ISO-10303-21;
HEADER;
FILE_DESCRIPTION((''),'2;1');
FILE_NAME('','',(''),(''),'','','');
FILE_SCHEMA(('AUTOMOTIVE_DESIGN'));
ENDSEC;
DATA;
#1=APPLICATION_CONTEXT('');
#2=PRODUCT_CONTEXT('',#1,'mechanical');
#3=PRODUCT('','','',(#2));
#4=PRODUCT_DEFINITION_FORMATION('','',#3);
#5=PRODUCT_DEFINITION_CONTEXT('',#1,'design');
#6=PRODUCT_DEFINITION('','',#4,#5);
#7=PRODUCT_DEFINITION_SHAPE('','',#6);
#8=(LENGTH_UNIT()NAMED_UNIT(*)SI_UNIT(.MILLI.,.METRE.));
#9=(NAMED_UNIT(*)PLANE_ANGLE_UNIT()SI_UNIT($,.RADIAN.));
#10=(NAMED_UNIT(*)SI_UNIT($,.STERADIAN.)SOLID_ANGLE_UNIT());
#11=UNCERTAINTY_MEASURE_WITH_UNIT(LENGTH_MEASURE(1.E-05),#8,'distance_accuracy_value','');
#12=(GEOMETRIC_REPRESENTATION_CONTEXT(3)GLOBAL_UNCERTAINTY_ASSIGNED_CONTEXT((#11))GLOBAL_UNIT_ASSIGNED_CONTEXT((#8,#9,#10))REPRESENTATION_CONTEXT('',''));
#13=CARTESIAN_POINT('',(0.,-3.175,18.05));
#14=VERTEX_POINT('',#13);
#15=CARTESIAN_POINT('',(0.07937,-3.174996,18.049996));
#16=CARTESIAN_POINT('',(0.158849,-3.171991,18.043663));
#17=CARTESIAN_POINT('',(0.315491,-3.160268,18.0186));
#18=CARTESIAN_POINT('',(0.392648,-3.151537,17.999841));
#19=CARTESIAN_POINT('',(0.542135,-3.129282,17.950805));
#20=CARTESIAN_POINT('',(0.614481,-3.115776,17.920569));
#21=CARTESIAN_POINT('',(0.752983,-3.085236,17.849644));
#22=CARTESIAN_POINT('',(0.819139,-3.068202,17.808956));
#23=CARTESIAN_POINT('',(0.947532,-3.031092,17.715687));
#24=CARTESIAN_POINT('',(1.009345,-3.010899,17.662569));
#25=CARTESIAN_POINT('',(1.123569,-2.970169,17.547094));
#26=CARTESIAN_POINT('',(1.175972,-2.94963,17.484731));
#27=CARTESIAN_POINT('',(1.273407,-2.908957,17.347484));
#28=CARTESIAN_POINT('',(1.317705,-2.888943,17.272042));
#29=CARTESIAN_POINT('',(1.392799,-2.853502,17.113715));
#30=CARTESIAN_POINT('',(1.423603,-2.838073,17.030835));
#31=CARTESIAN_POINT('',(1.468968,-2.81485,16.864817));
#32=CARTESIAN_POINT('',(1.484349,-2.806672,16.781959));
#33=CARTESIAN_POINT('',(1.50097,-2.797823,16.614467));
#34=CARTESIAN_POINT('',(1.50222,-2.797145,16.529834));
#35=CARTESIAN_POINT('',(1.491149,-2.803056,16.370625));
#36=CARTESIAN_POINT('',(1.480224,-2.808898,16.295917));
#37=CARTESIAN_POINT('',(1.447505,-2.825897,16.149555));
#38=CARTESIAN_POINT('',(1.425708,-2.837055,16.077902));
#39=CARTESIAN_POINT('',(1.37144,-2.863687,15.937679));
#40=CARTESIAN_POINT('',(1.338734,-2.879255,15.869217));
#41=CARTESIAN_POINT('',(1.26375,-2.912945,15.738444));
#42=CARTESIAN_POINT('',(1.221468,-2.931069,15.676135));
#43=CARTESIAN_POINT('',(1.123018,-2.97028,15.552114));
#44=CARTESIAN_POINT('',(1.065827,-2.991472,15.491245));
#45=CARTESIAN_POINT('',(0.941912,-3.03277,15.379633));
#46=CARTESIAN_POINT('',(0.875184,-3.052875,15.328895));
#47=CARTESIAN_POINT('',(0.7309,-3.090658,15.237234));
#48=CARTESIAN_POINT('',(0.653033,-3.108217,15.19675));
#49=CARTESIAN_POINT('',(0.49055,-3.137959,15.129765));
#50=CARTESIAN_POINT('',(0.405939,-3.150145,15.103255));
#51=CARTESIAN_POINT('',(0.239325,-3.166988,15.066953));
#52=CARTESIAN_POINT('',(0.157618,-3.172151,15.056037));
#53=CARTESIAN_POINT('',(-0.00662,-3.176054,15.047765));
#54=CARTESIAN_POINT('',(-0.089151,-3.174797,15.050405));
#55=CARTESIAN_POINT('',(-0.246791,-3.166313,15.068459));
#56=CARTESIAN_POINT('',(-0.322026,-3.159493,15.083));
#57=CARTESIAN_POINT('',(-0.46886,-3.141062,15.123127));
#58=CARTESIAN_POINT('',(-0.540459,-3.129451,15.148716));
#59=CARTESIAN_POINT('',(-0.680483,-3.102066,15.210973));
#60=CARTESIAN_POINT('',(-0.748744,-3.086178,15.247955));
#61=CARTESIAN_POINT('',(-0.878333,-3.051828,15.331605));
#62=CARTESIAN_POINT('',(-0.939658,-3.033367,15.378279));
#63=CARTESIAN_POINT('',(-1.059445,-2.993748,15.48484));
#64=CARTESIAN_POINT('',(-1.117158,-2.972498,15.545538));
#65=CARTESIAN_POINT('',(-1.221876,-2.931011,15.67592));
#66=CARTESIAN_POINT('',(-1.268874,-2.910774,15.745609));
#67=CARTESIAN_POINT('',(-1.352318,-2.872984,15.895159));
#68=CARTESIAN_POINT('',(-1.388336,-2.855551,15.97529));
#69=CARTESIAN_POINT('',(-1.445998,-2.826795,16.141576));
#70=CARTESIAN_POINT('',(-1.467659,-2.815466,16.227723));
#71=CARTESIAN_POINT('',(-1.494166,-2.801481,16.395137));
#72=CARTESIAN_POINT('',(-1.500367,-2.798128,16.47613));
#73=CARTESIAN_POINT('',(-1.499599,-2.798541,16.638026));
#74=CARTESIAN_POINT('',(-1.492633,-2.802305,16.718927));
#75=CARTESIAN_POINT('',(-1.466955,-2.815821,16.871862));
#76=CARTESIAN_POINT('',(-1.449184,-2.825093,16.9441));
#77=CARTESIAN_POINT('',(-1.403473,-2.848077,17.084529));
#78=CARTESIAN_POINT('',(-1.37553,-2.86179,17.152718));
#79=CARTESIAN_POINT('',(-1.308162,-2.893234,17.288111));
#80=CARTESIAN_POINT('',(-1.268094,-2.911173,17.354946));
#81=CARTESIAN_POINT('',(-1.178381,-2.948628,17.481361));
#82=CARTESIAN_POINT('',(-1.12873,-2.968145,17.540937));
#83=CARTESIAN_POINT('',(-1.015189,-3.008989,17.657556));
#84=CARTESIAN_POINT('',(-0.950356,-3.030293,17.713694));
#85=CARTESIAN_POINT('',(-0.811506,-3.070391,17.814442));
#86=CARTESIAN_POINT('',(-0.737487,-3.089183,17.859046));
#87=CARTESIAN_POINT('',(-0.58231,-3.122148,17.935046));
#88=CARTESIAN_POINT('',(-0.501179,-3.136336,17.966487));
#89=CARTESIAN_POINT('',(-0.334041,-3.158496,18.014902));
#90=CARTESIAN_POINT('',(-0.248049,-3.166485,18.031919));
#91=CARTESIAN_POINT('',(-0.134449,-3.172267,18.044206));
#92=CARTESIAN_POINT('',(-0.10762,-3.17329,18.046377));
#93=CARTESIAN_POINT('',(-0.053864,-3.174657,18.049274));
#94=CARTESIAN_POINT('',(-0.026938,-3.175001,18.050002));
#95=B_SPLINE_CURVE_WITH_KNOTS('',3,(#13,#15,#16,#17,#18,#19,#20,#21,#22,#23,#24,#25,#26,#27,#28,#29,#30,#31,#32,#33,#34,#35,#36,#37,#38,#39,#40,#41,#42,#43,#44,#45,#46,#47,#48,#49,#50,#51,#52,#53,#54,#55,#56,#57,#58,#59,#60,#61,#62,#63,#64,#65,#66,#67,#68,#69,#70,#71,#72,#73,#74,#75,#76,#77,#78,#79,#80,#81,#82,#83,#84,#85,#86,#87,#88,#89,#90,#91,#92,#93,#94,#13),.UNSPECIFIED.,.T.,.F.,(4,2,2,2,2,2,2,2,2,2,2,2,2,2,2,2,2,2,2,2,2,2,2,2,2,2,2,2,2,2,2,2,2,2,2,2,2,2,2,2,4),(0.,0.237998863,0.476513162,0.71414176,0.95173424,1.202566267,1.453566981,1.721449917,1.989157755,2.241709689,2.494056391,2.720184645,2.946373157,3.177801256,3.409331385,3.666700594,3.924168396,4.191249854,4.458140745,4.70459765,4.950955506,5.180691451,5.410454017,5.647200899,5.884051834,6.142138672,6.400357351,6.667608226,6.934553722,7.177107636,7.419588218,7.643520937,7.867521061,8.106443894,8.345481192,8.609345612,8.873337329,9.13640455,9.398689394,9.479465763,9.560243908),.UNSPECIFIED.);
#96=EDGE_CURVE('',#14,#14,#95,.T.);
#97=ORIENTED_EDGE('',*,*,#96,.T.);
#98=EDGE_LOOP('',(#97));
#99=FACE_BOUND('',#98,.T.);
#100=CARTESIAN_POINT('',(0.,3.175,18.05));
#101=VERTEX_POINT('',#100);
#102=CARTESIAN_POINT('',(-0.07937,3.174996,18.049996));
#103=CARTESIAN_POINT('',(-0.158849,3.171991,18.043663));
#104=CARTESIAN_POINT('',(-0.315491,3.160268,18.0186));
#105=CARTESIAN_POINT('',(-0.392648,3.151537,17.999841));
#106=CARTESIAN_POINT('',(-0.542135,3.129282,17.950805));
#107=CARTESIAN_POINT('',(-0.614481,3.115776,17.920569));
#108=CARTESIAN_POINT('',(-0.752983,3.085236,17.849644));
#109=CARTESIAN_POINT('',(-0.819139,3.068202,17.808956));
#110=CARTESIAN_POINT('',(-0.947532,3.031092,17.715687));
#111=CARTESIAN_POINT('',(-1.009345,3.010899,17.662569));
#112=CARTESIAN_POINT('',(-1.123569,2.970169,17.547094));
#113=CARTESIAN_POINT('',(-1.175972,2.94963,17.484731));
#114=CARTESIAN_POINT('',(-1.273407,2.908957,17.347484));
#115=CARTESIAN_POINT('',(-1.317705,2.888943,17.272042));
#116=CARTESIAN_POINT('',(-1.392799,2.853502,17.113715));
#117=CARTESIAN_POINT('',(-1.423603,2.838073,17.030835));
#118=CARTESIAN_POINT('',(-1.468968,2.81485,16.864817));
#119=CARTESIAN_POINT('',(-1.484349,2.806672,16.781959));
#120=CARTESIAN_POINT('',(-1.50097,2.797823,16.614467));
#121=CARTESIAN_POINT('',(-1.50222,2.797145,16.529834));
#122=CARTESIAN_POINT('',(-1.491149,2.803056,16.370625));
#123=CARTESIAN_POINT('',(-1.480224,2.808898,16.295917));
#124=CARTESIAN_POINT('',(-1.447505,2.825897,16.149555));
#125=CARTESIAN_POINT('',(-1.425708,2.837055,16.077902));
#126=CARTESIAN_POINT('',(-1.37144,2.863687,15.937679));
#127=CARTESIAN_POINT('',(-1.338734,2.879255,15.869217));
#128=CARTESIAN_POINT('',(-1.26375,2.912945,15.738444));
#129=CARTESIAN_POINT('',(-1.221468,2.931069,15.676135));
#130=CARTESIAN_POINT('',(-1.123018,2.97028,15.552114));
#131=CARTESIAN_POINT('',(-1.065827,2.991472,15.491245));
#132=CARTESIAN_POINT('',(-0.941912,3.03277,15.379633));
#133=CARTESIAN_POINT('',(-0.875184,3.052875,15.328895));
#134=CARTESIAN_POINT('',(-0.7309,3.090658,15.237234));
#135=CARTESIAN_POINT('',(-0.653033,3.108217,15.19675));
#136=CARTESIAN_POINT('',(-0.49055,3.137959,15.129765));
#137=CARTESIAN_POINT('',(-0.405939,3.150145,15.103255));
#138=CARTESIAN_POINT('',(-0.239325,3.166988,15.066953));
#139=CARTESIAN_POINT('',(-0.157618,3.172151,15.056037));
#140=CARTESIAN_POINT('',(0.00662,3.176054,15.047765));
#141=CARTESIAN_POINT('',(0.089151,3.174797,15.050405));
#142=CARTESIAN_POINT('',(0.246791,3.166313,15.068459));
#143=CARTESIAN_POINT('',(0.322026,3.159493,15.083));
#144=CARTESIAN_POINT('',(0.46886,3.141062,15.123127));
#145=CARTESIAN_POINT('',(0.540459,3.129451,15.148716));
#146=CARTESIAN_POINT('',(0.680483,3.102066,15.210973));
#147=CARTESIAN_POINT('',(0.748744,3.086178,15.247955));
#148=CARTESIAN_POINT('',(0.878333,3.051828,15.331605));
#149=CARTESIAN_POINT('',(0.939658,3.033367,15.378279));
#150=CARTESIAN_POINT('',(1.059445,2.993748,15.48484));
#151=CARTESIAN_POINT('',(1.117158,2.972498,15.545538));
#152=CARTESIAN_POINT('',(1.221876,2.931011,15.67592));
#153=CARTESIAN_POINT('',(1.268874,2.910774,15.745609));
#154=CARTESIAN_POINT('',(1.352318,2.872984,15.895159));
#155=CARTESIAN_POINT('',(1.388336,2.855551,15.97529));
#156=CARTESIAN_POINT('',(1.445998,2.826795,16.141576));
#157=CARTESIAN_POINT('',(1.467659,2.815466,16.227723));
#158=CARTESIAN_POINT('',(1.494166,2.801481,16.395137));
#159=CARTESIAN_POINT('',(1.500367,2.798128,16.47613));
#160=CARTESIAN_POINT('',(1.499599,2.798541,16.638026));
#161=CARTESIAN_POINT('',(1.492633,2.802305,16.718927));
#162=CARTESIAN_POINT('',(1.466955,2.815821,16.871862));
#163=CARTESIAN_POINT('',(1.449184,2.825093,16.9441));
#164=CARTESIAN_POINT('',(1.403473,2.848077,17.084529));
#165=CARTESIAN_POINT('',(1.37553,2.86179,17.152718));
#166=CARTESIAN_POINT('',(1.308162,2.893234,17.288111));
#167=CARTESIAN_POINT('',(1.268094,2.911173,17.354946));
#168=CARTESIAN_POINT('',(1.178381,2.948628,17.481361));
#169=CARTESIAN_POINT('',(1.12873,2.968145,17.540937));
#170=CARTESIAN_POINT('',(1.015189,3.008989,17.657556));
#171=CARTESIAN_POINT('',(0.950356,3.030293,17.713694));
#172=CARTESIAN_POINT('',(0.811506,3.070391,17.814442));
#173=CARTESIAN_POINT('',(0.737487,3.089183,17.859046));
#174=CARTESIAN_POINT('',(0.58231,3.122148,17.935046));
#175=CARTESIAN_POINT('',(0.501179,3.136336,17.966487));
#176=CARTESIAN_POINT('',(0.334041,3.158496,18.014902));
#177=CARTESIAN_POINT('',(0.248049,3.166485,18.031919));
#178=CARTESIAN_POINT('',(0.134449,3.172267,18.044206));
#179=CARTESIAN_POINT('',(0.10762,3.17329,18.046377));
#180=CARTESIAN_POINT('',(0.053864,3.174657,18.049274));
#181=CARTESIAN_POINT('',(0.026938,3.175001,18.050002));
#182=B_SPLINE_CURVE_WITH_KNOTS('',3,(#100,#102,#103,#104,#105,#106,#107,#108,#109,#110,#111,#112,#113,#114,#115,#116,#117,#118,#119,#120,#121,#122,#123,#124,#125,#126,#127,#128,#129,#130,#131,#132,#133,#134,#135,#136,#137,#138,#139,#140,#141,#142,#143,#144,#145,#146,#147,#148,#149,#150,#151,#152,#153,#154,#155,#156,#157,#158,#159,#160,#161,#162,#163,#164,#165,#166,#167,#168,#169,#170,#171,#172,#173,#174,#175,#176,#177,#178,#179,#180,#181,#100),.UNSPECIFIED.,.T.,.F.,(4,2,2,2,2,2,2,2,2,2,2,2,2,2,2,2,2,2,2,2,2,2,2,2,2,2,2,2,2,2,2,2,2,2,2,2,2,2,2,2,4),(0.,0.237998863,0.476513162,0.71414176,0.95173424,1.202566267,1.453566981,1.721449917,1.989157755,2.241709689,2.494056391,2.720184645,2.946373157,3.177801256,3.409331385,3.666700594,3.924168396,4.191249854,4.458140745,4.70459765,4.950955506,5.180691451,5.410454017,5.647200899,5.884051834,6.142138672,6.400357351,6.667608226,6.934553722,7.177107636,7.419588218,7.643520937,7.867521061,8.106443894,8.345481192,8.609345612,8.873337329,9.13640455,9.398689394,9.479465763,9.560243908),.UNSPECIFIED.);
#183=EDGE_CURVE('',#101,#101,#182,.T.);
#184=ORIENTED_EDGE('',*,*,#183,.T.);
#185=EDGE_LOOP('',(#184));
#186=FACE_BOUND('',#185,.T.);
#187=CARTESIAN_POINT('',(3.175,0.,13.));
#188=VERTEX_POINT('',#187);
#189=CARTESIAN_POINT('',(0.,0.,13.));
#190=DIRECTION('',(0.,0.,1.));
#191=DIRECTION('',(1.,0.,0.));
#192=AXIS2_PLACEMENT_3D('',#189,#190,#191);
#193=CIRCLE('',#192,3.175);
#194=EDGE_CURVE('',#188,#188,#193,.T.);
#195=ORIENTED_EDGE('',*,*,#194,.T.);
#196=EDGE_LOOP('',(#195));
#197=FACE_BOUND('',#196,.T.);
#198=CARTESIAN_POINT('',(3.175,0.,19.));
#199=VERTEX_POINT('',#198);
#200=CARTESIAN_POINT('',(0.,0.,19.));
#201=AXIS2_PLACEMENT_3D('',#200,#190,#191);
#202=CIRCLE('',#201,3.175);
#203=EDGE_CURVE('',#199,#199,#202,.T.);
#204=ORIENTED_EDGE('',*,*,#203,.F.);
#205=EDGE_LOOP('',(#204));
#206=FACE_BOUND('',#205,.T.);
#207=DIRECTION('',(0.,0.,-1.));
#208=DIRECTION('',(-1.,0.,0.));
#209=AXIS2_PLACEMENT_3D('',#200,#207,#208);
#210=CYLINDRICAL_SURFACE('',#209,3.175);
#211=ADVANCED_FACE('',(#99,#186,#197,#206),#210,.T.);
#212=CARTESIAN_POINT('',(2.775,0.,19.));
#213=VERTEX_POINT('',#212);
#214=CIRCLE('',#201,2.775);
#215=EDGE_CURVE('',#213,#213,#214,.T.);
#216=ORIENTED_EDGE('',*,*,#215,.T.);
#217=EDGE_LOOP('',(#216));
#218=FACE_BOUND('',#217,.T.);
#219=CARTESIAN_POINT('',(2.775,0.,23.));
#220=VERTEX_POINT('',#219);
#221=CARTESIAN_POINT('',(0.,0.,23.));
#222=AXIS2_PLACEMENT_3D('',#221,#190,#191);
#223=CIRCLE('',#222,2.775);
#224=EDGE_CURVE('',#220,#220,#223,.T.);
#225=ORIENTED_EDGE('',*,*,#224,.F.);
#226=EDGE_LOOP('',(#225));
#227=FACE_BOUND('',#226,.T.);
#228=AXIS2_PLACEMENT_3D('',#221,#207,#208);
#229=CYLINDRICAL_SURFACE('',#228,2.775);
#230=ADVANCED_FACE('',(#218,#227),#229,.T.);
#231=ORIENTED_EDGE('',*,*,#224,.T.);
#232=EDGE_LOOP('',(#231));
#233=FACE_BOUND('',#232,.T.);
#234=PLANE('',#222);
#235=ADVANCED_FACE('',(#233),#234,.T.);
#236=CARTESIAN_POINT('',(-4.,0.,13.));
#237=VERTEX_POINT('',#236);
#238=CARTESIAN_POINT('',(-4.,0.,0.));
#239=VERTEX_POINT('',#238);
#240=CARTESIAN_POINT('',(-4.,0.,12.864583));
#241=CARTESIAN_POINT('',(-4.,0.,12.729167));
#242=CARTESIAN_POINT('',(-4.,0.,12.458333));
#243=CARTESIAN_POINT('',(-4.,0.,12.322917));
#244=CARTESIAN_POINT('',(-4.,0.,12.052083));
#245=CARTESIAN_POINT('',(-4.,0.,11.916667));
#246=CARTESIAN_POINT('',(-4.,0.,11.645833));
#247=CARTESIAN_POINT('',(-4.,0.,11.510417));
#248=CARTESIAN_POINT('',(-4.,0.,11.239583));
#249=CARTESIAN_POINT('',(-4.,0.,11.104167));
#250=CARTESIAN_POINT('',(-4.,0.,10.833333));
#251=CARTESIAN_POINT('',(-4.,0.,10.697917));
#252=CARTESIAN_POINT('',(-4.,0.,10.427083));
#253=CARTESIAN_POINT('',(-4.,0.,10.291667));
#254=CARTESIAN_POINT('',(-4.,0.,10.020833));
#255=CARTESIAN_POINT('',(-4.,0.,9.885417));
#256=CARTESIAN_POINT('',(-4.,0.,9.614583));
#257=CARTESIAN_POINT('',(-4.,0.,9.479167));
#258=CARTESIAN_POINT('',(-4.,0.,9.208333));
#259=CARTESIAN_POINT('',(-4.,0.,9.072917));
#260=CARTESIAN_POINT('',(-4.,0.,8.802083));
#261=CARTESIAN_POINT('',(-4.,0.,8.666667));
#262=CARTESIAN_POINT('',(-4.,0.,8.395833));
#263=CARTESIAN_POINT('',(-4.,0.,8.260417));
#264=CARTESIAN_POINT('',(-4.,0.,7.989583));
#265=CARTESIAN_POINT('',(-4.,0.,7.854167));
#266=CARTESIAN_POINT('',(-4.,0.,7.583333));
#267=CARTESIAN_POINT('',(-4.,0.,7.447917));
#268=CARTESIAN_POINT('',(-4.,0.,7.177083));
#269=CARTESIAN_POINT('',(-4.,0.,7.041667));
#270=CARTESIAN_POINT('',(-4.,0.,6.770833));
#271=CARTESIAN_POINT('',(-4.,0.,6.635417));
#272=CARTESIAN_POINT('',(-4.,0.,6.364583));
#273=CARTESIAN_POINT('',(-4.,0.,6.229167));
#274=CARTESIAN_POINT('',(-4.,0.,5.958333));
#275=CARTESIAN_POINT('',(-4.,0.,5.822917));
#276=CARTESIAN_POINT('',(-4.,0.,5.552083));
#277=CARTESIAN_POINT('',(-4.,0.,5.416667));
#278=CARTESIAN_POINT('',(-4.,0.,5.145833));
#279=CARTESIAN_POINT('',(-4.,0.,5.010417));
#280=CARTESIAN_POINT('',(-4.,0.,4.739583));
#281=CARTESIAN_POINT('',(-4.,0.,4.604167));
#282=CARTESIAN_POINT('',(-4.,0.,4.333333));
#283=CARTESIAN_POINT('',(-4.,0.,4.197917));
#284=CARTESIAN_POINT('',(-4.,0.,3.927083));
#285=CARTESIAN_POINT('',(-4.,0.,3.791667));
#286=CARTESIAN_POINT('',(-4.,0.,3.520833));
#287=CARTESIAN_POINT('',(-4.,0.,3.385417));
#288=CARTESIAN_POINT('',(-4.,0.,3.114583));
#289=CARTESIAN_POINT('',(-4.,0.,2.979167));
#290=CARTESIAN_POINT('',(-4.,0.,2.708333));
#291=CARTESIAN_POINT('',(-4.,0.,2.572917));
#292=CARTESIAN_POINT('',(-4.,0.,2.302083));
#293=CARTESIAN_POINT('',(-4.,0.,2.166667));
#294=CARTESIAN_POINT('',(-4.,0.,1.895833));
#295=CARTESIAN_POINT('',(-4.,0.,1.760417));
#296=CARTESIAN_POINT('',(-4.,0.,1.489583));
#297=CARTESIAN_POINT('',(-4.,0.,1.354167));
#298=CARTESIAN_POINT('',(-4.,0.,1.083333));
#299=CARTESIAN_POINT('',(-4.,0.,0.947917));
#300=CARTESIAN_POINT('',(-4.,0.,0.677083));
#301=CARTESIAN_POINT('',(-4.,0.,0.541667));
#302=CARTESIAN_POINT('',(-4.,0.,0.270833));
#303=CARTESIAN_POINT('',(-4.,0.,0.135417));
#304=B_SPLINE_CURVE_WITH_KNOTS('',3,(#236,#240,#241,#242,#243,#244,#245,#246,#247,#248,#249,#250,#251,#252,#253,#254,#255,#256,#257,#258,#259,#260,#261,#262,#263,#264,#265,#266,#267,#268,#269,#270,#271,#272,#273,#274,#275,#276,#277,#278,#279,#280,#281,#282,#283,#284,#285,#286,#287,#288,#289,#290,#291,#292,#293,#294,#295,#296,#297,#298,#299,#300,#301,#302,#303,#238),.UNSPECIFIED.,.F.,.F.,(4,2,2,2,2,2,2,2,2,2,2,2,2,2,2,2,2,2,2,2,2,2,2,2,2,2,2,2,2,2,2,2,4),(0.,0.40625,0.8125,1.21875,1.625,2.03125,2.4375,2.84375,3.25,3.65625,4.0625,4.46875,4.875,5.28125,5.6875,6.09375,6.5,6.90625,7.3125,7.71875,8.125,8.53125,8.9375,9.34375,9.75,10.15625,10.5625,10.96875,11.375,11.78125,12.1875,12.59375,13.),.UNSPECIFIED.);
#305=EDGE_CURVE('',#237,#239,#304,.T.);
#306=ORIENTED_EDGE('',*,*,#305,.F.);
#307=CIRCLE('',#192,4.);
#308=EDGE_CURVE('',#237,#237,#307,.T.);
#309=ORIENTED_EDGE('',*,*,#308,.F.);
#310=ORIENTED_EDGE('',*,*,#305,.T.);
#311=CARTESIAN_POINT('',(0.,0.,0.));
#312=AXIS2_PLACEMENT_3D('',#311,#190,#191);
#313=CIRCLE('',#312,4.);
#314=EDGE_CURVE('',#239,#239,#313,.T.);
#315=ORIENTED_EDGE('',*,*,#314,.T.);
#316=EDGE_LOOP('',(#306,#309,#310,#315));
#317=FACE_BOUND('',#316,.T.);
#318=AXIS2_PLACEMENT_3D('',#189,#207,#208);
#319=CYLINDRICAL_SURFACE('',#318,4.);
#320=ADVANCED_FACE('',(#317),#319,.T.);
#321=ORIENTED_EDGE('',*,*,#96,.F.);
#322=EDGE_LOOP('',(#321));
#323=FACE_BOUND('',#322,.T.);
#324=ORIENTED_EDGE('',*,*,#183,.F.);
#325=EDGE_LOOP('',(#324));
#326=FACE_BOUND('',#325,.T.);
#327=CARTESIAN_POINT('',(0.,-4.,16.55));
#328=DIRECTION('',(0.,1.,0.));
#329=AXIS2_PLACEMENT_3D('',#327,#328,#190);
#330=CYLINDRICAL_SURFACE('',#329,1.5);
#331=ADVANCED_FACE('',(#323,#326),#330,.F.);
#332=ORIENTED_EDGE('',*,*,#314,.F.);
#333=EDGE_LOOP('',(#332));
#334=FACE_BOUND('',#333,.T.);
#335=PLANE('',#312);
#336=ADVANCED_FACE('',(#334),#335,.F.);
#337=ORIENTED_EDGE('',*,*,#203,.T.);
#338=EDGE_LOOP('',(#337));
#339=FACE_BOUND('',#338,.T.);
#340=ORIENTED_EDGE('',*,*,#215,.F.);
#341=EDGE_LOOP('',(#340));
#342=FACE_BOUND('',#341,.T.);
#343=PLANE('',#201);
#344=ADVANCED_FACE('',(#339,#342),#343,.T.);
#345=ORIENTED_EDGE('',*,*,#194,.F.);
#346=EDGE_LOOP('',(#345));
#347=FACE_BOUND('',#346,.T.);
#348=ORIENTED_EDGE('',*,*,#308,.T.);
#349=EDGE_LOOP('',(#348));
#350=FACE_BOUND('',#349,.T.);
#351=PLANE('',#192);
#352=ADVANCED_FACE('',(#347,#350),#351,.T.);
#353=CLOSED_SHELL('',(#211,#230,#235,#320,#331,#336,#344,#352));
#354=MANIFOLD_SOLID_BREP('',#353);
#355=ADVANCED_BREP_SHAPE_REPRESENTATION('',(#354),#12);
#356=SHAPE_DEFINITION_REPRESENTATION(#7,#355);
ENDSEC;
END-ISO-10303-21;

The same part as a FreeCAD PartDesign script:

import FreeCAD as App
import Part
import Sketcher

V = App.Vector

doc = App.newDocument("Part")
body = doc.addObject("PartDesign::Body", "Body")

# Sketch on XY plane
sketch1 = body.newObject("Sketcher::SketchObject", "Sketch")
sketch1.AttachmentSupport = (doc.getObject("XY_Plane"), [""])
sketch1.MapMode = "FlatFace"
sketch1.addGeometry(Part.Circle(V(0, 0, 0), V(0, 0, 1), 4), False)
sketch1.addConstraint([
    Sketcher.Constraint("Coincident", 0, 3, -1, 1),
    Sketcher.Constraint("Diameter", 0, 8.0),
])
pad1 = body.newObject("PartDesign::Pad", "Pad")
pad1.Profile = sketch1
pad1.Length = 13

# Sketch on XY plane
sketch2 = body.newObject("Sketcher::SketchObject", "Sketch001")
sketch2.AttachmentSupport = (doc.getObject("XY_Plane"), [""])
sketch2.MapMode = "FlatFace"
sketch2.AttachmentOffset = App.Placement(V(0, 0, 13), App.Rotation())
sketch2.addGeometry(Part.Circle(V(0, 0, 0), V(0, 0, 1), 3.2), False)
sketch2.addConstraint([
    Sketcher.Constraint("Coincident", 0, 3, -1, 1),
    Sketcher.Constraint("Diameter", 0, 6.35),
])
pad2 = body.newObject("PartDesign::Pad", "Pad001")
pad2.Profile = sketch2
pad2.Length = 6

# Sketch on XY plane
sketch3 = body.newObject("Sketcher::SketchObject", "Sketch002")
sketch3.AttachmentSupport = (doc.getObject("XY_Plane"), [""])
sketch3.MapMode = "FlatFace"
sketch3.AttachmentOffset = App.Placement(V(0, 0, 19), App.Rotation())
sketch3.addGeometry(Part.Circle(V(0, 0, 0), V(0, 0, 1), 2.8), False)
sketch3.addConstraint([
    Sketcher.Constraint("Coincident", 0, 3, -1, 1),
    Sketcher.Constraint("Diameter", 0, 5.55),
])
pad3 = body.newObject("PartDesign::Pad", "Pad002")
pad3.Profile = sketch3
pad3.Length = 4

# Sketch on XZ plane
sketch4 = body.newObject("Sketcher::SketchObject", "Sketch003")
sketch4.AttachmentSupport = (doc.getObject("XZ_Plane"), [""])
sketch4.MapMode = "FlatFace"
sketch4.addGeometry(Part.Circle(V(0, 16.6, 0), V(0, 0, 1), 1.5), False)
sketch4.addConstraint([
    Sketcher.Constraint("PointOnObject", 0, 3, -2),
    Sketcher.Constraint("Diameter", 0, 3.0),
    Sketcher.Constraint("DistanceY", -1, 1, 0, 3, 16.55),
])
pocket1 = body.newObject("PartDesign::Pocket", "Pocket")
pocket1.Profile = sketch4
pocket1.Type = "ThroughAll"
pocket1.Midplane = True

doc.recompute()
